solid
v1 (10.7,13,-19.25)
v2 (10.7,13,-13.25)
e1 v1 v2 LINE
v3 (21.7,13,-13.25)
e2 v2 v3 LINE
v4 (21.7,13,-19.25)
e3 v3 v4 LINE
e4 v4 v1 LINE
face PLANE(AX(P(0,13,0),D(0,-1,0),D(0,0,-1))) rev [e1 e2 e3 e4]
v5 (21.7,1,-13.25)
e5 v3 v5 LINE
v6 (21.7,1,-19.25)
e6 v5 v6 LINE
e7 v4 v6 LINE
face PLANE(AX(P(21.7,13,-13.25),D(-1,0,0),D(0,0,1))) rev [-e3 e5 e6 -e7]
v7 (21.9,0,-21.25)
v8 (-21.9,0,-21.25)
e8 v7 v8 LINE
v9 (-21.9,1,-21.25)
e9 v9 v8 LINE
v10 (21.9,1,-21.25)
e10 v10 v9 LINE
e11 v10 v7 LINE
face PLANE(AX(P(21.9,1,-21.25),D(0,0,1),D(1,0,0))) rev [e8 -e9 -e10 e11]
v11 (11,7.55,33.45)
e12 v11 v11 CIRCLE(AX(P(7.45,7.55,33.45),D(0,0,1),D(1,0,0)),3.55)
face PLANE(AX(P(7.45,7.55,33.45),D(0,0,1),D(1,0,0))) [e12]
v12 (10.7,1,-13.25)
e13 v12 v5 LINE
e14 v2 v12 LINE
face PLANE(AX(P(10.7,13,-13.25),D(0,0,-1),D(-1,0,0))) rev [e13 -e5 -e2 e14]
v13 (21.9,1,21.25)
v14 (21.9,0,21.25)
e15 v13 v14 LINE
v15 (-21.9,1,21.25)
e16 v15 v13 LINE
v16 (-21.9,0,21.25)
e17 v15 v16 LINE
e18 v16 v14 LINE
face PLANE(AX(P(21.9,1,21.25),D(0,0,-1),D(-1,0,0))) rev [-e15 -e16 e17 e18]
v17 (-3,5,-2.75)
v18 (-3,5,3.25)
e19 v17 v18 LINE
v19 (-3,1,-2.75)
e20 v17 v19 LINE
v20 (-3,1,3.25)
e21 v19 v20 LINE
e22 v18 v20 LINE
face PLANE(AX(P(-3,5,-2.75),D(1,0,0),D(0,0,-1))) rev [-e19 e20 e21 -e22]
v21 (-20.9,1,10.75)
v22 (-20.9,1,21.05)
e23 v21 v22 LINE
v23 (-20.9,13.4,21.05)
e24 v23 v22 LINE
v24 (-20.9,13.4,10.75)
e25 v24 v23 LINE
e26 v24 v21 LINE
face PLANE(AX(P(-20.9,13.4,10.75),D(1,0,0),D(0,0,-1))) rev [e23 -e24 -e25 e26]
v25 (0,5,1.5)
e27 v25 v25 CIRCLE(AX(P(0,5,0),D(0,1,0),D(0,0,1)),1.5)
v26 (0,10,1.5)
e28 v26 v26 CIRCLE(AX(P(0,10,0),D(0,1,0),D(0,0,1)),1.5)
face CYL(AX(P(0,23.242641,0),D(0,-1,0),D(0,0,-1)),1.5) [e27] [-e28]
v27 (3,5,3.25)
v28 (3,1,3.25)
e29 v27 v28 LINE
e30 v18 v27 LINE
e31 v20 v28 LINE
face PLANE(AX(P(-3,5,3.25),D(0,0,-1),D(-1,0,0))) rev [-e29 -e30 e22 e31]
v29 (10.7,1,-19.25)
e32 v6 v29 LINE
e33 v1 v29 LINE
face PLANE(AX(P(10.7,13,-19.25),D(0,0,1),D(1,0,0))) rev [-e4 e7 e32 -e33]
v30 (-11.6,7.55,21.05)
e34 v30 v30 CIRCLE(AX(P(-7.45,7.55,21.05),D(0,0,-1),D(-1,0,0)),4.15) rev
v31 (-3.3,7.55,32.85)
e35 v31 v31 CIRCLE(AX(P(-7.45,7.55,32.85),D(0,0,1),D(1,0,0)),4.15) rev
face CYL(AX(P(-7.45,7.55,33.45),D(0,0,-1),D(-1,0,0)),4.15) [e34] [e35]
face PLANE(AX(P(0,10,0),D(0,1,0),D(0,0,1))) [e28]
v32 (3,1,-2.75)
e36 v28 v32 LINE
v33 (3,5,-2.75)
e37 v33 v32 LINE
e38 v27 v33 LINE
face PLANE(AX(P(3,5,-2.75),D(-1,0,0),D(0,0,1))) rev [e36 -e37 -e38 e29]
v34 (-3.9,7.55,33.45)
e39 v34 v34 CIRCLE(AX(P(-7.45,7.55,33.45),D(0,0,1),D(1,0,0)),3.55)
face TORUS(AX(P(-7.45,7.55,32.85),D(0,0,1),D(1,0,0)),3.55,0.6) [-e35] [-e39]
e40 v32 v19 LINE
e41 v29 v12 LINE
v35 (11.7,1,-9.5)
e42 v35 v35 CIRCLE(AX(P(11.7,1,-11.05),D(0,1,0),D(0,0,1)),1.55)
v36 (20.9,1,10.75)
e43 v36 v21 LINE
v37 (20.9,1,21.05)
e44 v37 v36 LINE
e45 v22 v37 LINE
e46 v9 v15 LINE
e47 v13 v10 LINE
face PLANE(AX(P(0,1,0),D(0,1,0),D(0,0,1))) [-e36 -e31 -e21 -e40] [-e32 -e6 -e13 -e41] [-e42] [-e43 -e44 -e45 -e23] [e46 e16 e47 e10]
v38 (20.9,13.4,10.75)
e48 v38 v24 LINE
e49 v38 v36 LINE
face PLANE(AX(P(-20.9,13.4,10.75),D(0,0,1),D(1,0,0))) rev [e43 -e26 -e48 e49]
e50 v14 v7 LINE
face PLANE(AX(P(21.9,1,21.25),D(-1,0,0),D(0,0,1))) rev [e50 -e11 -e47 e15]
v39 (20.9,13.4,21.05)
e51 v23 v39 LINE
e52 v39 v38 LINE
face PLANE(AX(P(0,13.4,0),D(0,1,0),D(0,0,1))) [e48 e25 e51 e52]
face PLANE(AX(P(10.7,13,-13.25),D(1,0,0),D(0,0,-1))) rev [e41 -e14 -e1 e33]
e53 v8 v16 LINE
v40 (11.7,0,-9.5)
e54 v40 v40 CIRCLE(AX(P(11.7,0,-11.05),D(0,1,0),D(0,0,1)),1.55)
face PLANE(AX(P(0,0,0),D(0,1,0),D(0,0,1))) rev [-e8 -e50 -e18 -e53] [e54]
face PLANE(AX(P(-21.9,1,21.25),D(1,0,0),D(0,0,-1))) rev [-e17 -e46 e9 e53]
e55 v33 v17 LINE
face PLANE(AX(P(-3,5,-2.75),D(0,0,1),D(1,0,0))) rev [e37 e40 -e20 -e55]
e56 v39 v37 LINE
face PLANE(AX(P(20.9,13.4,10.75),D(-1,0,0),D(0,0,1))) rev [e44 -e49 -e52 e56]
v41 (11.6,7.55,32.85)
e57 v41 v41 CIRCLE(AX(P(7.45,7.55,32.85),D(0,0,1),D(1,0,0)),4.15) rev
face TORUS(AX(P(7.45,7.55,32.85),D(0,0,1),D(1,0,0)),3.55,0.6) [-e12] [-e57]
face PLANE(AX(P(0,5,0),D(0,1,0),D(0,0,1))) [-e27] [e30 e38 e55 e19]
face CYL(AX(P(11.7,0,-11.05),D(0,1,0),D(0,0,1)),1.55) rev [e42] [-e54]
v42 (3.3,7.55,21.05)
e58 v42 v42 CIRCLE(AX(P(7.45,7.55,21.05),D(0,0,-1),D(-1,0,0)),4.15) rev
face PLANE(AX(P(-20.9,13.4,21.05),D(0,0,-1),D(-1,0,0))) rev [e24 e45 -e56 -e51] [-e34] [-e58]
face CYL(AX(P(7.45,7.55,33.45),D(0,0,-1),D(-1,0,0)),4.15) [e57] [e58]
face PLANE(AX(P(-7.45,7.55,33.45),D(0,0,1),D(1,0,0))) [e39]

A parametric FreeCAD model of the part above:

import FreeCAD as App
import Part
import Sketcher
from FreeCAD import Vector
Q = App.Units.Quantity


def edges_at(feature, points):
    """Names of the edges that pass closest to the given points."""
    edges = feature.Shape.Edges
    near = lambda p: min(range(len(edges)), key=lambda i: edges[i].distToShape(Part.Vertex(*p))[0])
    return sorted({f"Edge{near(p) + 1}" for p in points})


def add_polygon(sketch, points):
    """Adds a closed chain of lines whose ends are joined by coincident constraints."""
    first, n = sketch.GeometryCount, len(points)
    for a, b in zip(points, points[1:] + points[:1]):
        sketch.addGeometry(Part.LineSegment(App.Vector(*a, 0), App.Vector(*b, 0)), False)
    for i in range(n):
        sketch.addConstraint(Sketcher.Constraint("Coincident", first + i, 2, first + (i + 1) % n, 1))

doc = App.newDocument("Part")
body = doc.addObject("PartDesign::Body", "Body")

# Sketch on XZ plane
sketch1 = body.newObject("Sketcher::SketchObject", "Sketch")
sketch1.AttachmentSupport = (doc.getObject("XZ_Plane"), [""])
sketch1.MapMode = "FlatFace"
add_polygon(sketch1, [(-21.9, -21.25), (-21.9, 21.25), (21.9, 21.25), (21.9, -21.25)])  # lines 0-3
sketch1.addConstraint([
    Sketcher.Constraint("Vertical", 0),
    Sketcher.Constraint("Horizontal", 1),
    Sketcher.Constraint("Vertical", 2),
    Sketcher.Constraint("Horizontal", 3),
    Sketcher.Constraint("Symmetric", 0, 2, 2, 2, -1, 1),
    Sketcher.Constraint("DistanceX", 1, 1, 1, 2, Q("43.8 mm")),
    Sketcher.Constraint("DistanceY", 0, 1, 0, 2, Q("42.5 mm")),
])
pad1 = body.newObject("PartDesign::Pad", "Pad")
pad1.Profile = sketch1
pad1.Length = 1
pad1.Reversed = True

# Sketch on XZ plane
sketch2 = body.newObject("Sketcher::SketchObject", "Sketch001")
sketch2.AttachmentSupport = (doc.getObject("XZ_Plane"), [""])
sketch2.MapMode = "FlatFace"
sketch2.AttachmentOffset = App.Placement(Vector(0, 0, -1), App.Rotation())
add_polygon(sketch2, [(-20.9, 10.75), (-20.9, 21.05), (20.9, 21.05), (20.9, 10.75)])  # lines 0-3
sketch2.addConstraint([
    Sketcher.Constraint("Vertical", 0),
    Sketcher.Constraint("Horizontal", 1),
    Sketcher.Constraint("Vertical", 2),
    Sketcher.Constraint("Horizontal", 3),
    Sketcher.Constraint("DistanceX", 1, 1, 1, 2, Q("41.8 mm")),
    Sketcher.Constraint("DistanceY", 0, 1, 0, 2, Q("10.3 mm")),
    Sketcher.Constraint("DistanceX", 0, 2, -1, 1, Q("20.9 mm")),
    Sketcher.Constraint("DistanceY", -1, 1, 0, 2, Q("21.05 mm")),
])
pad2 = body.newObject("PartDesign::Pad", "Pad001")
pad2.Profile = sketch2
pad2.Length = 12.4
pad2.Reversed = True

# Sketch on XY plane
sketch3 = body.newObject("Sketcher::SketchObject", "Sketch002")
sketch3.AttachmentSupport = (doc.getObject("XY_Plane"), [""])
sketch3.MapMode = "FlatFace"
sketch3.AttachmentOffset = App.Placement(Vector(0, 0, 21.05), App.Rotation())
sketch3.addGeometry([
    Part.Circle(Vector(7.45, 7.55, 0), Vector(0, 0, 1), 4.15),
    Part.Circle(Vector(-7.45, 7.55, 0), Vector(0, 0, 1), 4.15),
], False)
sketch3.addConstraint([
    Sketcher.Constraint("Equal", 0, 1),
    Sketcher.Constraint("Symmetric", 0, 3, 1, 3, -2),
    Sketcher.Constraint("Diameter", 0, Q("8.3 mm")),
    Sketcher.Constraint("DistanceX", 1, 3, 0, 3, Q("14.9 mm")),
    Sketcher.Constraint("DistanceY", -1, 1, 0, 3, Q("7.55 mm")),
])
pad3 = body.newObject("PartDesign::Pad", "Pad002")
pad3.Profile = sketch3
pad3.Length = 12.4

# Sketch on XZ plane
sketch4 = body.newObject("Sketcher::SketchObject", "Sketch003")
sketch4.AttachmentSupport = (doc.getObject("XZ_Plane"), [""])
sketch4.MapMode = "FlatFace"
sketch4.AttachmentOffset = App.Placement(Vector(0, 0, -1), App.Rotation())
add_polygon(sketch4, [(10.7, -19.25), (10.7, -13.25), (21.7, -13.25), (21.7, -19.25)])  # lines 0-3
sketch4.addConstraint([
    Sketcher.Constraint("Vertical", 0),
    Sketcher.Constraint("Horizontal", 1),
    Sketcher.Constraint("Vertical", 2),
    Sketcher.Constraint("Horizontal", 3),
    Sketcher.Constraint("DistanceX", 1, 1, 1, 2, Q("11 mm")),
    Sketcher.Constraint("DistanceY", 0, 1, 0, 2, Q("6 mm")),
    Sketcher.Constraint("DistanceX", -1, 1, 0, 2, Q("10.7 mm")),
    Sketcher.Constraint("DistanceY", 0, 2, -1, 1, Q("13.25 mm")),
])
pad4 = body.newObject("PartDesign::Pad", "Pad003")
pad4.Profile = sketch4
pad4.Length = 12
pad4.Reversed = True

# Sketch on XZ plane
sketch5 = body.newObject("Sketcher::SketchObject", "Sketch004")
sketch5.AttachmentSupport = (doc.getObject("XZ_Plane"), [""])
sketch5.MapMode = "FlatFace"
sketch5.AttachmentOffset = App.Placement(Vector(0, 0, -1), App.Rotation())
add_polygon(sketch5, [(-3, -2.75), (-3, 3.25), (3, 3.25), (3, -2.75)])  # lines 0-3
sketch5.addConstraint([
    Sketcher.Constraint("Vertical", 0),
    Sketcher.Constraint("Horizontal", 1),
    Sketcher.Constraint("Vertical", 2),
    Sketcher.Constraint("Horizontal", 3),
    Sketcher.Constraint("Equal", 3, 0),
    Sketcher.Constraint("DistanceX", 1, 1, 1, 2, Q("6 mm")),
    Sketcher.Constraint("DistanceX", 0, 2, -1, 1, Q("3 mm")),
    Sketcher.Constraint("DistanceY", -1, 1, 0, 2, Q("3.25 mm")),
])
pad5 = body.newObject("PartDesign::Pad", "Pad004")
pad5.Profile = sketch5
pad5.Length = 4
pad5.Reversed = True

# Sketch on XZ plane
sketch6 = body.newObject("Sketcher::SketchObject", "Sketch005")
sketch6.AttachmentSupport = (doc.getObject("XZ_Plane"), [""])
sketch6.MapMode = "FlatFace"
sketch6.AttachmentOffset = App.Placement(Vector(0, 0, -5), App.Rotation())
sketch6.addGeometry(Part.Circle(Vector(0, 0, 0), Vector(0, 0, 1), 1.5), False)
sketch6.addConstraint([
    Sketcher.Constraint("Coincident", 0, 3, -1, 1),
    Sketcher.Constraint("Diameter", 0, Q("3 mm")),
])
pad6 = body.newObject("PartDesign::Pad", "Pad005")
pad6.Profile = sketch6
pad6.Length = 5
pad6.Reversed = True

# Sketch on XZ plane
sketch7 = body.newObject("Sketcher::SketchObject", "Sketch006")
sketch7.AttachmentSupport = (doc.getObject("XZ_Plane"), [""])
sketch7.MapMode = "FlatFace"
sketch7.AttachmentOffset = App.Placement(Vector(0, 0, -1), App.Rotation())
sketch7.addGeometry(Part.Circle(Vector(11.7, -11.05, 0), Vector(0, 0, 1), 1.55), False)
sketch7.addConstraint([
    Sketcher.Constraint("Diameter", 0, Q("3.1 mm")),
    Sketcher.Constraint("DistanceX", -1, 1, 0, 3, Q("11.7 mm")),
    Sketcher.Constraint("DistanceY", 0, 3, -1, 1, Q("11.05 mm")),
])
pocket1 = body.newObject("PartDesign::Pocket", "Pocket")
pocket1.Profile = sketch7
pocket1.Type = "ThroughAll"
pocket1.Reversed = True
doc.recompute()

fillet = body.newObject("PartDesign::Fillet", "Fillet")
fillet.Base = (pocket1, edges_at(pocket1, [(3.3, 7.55, 33.45), (-11.6, 7.55, 33.45)]))
fillet.Radius = 0.6

doc.recompute()
